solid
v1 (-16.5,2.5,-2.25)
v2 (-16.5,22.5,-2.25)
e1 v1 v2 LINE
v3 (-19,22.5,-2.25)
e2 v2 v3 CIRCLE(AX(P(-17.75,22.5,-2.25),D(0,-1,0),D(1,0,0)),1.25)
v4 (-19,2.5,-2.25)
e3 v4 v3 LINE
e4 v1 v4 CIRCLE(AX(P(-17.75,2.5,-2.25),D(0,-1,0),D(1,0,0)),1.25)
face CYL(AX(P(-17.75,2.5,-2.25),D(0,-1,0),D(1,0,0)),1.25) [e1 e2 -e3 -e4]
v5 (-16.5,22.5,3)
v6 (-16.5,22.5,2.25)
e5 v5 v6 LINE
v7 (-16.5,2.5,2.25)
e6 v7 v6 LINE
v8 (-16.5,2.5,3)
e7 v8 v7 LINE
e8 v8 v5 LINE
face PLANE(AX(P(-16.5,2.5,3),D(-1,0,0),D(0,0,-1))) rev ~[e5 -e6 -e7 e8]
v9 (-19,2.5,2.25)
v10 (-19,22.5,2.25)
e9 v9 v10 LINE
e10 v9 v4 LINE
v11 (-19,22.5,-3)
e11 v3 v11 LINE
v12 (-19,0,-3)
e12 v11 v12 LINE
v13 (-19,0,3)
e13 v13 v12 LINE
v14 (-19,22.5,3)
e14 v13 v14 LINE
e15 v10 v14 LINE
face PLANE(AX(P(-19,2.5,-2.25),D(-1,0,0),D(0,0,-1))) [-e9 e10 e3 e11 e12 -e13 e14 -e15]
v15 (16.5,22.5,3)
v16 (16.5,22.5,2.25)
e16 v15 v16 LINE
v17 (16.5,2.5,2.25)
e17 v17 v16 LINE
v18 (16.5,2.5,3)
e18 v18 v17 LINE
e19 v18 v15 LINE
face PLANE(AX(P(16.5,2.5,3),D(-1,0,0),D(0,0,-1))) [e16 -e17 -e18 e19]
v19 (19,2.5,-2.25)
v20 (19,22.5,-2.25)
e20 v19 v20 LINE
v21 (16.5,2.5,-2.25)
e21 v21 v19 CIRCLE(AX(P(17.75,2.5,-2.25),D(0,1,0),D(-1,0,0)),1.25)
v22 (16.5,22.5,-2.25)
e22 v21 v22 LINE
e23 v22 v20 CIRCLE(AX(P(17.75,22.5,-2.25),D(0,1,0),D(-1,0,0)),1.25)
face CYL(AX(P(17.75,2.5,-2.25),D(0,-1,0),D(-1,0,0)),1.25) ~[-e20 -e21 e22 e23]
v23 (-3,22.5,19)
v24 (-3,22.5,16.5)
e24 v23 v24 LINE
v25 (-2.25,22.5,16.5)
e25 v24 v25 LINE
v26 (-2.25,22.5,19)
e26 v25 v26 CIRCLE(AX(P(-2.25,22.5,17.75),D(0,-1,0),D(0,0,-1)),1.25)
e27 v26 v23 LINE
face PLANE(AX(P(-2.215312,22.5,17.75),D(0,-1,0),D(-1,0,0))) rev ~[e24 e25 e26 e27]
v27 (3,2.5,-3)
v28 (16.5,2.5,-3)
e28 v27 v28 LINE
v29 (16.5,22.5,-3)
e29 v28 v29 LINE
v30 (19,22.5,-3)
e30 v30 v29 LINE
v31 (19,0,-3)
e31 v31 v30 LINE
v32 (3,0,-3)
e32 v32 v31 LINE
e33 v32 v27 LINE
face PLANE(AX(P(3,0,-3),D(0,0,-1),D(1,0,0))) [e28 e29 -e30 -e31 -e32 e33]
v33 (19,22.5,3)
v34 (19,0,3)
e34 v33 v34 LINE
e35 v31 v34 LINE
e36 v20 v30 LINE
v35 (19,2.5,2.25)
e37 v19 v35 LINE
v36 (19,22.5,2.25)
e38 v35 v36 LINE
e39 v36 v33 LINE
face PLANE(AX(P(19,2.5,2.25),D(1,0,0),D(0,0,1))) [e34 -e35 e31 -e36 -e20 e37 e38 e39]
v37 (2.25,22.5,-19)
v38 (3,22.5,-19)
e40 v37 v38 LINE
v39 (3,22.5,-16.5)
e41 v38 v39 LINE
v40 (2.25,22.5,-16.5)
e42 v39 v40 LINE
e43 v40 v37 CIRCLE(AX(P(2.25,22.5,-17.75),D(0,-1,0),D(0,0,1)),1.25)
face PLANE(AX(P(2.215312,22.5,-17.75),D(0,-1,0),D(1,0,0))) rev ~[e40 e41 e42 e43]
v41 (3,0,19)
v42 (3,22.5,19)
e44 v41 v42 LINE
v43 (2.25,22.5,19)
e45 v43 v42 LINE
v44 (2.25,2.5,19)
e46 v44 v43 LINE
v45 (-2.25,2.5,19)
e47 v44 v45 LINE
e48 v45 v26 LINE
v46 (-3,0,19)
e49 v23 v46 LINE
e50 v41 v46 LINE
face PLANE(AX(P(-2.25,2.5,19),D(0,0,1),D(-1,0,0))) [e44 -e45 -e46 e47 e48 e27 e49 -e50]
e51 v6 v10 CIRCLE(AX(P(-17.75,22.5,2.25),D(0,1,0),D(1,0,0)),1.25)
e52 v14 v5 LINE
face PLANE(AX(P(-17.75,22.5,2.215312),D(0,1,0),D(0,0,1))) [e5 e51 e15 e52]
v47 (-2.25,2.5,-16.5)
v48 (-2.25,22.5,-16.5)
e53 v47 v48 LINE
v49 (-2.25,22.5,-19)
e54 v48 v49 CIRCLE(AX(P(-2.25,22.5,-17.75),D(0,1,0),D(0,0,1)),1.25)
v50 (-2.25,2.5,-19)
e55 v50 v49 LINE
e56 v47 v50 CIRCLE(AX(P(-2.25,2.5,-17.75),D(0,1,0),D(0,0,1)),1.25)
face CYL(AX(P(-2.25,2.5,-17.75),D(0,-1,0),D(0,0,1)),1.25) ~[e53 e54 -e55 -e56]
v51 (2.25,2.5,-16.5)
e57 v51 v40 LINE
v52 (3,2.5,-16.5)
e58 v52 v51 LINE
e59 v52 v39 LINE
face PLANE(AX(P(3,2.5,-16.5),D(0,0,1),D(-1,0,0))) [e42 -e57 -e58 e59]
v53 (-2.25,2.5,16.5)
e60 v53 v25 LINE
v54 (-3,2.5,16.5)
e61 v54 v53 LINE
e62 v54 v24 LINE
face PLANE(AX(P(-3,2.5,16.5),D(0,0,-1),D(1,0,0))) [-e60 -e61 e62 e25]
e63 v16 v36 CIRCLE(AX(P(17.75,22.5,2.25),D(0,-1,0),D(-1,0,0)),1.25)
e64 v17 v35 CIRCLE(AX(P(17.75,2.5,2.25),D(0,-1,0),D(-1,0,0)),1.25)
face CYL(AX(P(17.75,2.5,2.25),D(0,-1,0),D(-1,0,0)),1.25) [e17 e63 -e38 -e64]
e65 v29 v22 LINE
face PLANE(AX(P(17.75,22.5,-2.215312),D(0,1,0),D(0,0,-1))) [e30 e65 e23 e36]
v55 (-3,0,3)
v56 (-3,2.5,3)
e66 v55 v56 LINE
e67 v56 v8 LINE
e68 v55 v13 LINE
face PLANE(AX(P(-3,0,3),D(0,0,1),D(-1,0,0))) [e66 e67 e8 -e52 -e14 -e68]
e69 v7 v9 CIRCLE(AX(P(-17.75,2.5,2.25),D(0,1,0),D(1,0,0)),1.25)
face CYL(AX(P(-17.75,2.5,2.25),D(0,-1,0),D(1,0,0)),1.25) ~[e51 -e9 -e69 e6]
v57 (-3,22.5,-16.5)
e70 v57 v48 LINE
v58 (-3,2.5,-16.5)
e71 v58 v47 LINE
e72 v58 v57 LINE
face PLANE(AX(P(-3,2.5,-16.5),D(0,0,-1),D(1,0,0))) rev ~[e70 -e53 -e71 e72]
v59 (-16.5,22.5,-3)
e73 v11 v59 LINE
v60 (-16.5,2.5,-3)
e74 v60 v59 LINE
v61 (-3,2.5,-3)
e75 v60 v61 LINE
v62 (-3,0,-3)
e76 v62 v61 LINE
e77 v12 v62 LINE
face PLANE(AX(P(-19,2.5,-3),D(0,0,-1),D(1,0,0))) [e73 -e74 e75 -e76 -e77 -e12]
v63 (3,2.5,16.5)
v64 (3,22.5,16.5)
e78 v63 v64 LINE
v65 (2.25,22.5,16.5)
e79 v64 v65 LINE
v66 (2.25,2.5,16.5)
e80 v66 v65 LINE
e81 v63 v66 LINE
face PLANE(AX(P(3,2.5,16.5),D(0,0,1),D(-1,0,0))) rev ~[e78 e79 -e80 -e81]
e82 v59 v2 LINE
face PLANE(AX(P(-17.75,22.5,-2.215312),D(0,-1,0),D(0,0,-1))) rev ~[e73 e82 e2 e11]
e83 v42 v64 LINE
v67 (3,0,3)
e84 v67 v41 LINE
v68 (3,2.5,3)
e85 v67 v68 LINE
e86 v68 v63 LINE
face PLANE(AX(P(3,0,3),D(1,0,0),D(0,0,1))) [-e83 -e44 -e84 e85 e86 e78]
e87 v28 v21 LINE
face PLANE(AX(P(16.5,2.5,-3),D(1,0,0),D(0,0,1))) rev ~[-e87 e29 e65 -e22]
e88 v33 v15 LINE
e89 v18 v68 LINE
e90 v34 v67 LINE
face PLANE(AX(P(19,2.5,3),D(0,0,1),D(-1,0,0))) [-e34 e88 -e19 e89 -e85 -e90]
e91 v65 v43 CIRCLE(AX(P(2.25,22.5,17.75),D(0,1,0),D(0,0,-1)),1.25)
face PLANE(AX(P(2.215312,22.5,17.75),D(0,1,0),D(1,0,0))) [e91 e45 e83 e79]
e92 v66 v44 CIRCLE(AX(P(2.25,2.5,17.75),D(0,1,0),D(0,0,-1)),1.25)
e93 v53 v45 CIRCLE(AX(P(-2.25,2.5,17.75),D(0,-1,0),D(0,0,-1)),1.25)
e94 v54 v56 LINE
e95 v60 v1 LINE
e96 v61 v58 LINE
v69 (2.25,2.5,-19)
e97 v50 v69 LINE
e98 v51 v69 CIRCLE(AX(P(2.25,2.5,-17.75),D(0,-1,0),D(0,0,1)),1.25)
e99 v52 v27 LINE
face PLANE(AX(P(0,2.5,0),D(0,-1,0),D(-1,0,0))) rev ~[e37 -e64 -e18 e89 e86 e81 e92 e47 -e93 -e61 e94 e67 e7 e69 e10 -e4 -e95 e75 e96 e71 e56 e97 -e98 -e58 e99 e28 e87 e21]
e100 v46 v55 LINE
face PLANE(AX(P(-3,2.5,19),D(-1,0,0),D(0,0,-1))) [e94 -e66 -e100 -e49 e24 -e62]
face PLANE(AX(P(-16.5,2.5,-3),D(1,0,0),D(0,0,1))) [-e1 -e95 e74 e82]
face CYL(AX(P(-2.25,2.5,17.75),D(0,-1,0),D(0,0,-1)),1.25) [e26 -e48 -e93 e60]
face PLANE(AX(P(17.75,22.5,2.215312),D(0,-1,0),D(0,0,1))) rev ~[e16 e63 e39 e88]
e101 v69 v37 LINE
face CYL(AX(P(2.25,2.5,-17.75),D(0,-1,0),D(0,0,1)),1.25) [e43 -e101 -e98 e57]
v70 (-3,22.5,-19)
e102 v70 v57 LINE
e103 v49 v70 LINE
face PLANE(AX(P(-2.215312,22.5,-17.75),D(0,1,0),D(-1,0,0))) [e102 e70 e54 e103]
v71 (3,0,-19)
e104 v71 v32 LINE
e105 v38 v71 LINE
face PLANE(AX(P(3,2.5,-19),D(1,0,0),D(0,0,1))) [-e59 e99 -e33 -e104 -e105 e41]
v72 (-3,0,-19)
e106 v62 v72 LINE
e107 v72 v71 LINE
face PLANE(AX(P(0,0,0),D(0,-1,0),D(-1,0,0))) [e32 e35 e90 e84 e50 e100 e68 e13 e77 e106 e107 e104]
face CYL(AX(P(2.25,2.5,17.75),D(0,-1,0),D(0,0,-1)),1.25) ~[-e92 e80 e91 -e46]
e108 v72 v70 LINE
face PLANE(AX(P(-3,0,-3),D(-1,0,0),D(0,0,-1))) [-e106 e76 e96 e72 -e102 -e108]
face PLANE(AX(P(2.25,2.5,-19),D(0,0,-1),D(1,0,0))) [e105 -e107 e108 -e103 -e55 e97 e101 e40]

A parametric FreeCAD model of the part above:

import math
import FreeCAD as App
import Part
import Sketcher
Q = App.Units.Quantity


def add_polygon(sketch, points):
    """Adds a closed chain of lines whose ends are joined by coincident constraints."""
    first, n = sketch.GeometryCount, len(points)
    for a, b in zip(points, points[1:] + points[:1]):
        sketch.addGeometry(Part.LineSegment(App.Vector(*a, 0), App.Vector(*b, 0)), False)
    for i in range(n):
        sketch.addConstraint(Sketcher.Constraint("Coincident", first + i, 2, first + (i + 1) % n, 1))

doc = App.newDocument("Part")
body = doc.addObject("PartDesign::Body", "Body")

# Sketch on XZ plane
sketch1 = doc.addObject("Sketcher::SketchObject", "Sketch")
body.addObject(sketch1)
sketch1.AttachmentSupport = (doc.XZ_Plane, [""])
sketch1.MapMode = "FlatFace"
add_polygon(sketch1, [(-3, -19), (-3, -3), (-19, -3), (-19, 3), (-3, 3), (-3, 19), (3, 19), (3, 3), (19, 3), (19, -3), (3, -3), (3, -19)])  # lines 0-11
sketch1.addConstraint(Sketcher.Constraint("Vertical", 0))
sketch1.addConstraint(Sketcher.Constraint("Horizontal", 1))
sketch1.addConstraint(Sketcher.Constraint("Vertical", 2))
sketch1.addConstraint(Sketcher.Constraint("Horizontal", 3))
sketch1.addConstraint(Sketcher.Constraint("Vertical", 4))
sketch1.addConstraint(Sketcher.Constraint("Horizontal", 5))
sketch1.addConstraint(Sketcher.Constraint("Vertical", 6))
sketch1.addConstraint(Sketcher.Constraint("Horizontal", 7))
sketch1.addConstraint(Sketcher.Constraint("Vertical", 8))
sketch1.addConstraint(Sketcher.Constraint("Horizontal", 9))
sketch1.addConstraint(Sketcher.Constraint("Vertical", 10))
sketch1.addConstraint(Sketcher.Constraint("Horizontal", 11))
sketch1.addConstraint(Sketcher.Constraint("Symmetric", 0, 2, 6, 2, -1, 1))
sketch1.addConstraint(Sketcher.Constraint("Symmetric", 2, 2, 8, 2, -1, 1))
sketch1.addConstraint(Sketcher.Constraint("Symmetric", 4, 2, 10, 2, -1, 1))
sketch1.addConstraint(Sketcher.Constraint("Symmetric", 3, 2, 6, 2, -2))
sketch1.addConstraint(Sketcher.Constraint("Equal", 9, 0))
sketch1.addConstraint(Sketcher.Constraint("Equal", 11, 2))
sketch1.addConstraint(Sketcher.Constraint("DistanceX", 1, 2, 1, 1, Q("16 mm")))
sketch1.addConstraint(Sketcher.Constraint("DistanceX", 5, 1, 5, 2, Q("6 mm")))
pad1 = doc.addObject("PartDesign::Pad", "Pad")
body.addObject(pad1)
pad1.Profile = sketch1
pad1.Length = 2.5
pad1.Reversed = True

# Sketch on XZ plane
sketch2 = doc.addObject("Sketcher::SketchObject", "Sketch001")
body.addObject(sketch2)
sketch2.AttachmentSupport = (doc.XZ_Plane, [""])
sketch2.MapMode = "FlatFace"
sketch2.AttachmentOffset = App.Placement(App.Vector(0, 0, -2.5), App.Rotation())
sketch2.addGeometry(Part.LineSegment(App.Vector(-3, 19, 0), App.Vector(-2.2, 19, 0)), False)
sketch2.addGeometry(Part.ArcOfCircle(Part.Circle(App.Vector(-2.2, 17.8, 0), App.Vector(0, 0, 1), 1.2), math.radians(-90), math.radians(90)), False)
sketch2.addGeometry(Part.LineSegment(App.Vector(-2.2, 16.5, 0), App.Vector(-3, 16.5, 0)), False)
sketch2.addGeometry(Part.LineSegment(App.Vector(-3, 16.5, 0), App.Vector(-3, 19, 0)), False)
sketch2.addGeometry(Part.LineSegment(App.Vector(3, 16.5, 0), App.Vector(2.2, 16.5, 0)), False)
sketch2.addGeometry(Part.ArcOfCircle(Part.Circle(App.Vector(2.2, 17.8, 0), App.Vector(0, 0, 1), 1.2), math.radians(90), math.radians(270)), False)
sketch2.addGeometry(Part.LineSegment(App.Vector(2.2, 19, 0), App.Vector(3, 19, 0)), False)
sketch2.addGeometry(Part.LineSegment(App.Vector(3, 19, 0), App.Vector(3, 16.5, 0)), False)
sketch2.addConstraint(Sketcher.Constraint("Tangent", 0, 2, 1, 2))
sketch2.addConstraint(Sketcher.Constraint("Tangent", 1, 1, 2, 1))
sketch2.addConstraint(Sketcher.Constraint("Coincident", 2, 2, 3, 1))
sketch2.addConstraint(Sketcher.Constraint("Coincident", 3, 2, 0, 1))
sketch2.addConstraint(Sketcher.Constraint("Tangent", 4, 2, 5, 2))
sketch2.addConstraint(Sketcher.Constraint("Tangent", 5, 1, 6, 1))
sketch2.addConstraint(Sketcher.Constraint("Coincident", 6, 2, 7, 1))
sketch2.addConstraint(Sketcher.Constraint("Coincident", 7, 2, 4, 1))
sketch2.addConstraint(Sketcher.Constraint("Horizontal", 0))
sketch2.addConstraint(Sketcher.Constraint("Horizontal", 2))
sketch2.addConstraint(Sketcher.Constraint("Vertical", 3))
sketch2.addConstraint(Sketcher.Constraint("Horizontal", 4))
sketch2.addConstraint(Sketcher.Constraint("Horizontal", 6))
sketch2.addConstraint(Sketcher.Constraint("Vertical", 7))
sketch2.addConstraint(Sketcher.Constraint("Equal", 1, 5))
sketch2.addConstraint(Sketcher.Constraint("Symmetric", 1, 3, 5, 3, -2))
sketch2.addConstraint(Sketcher.Constraint("Equal", 2, 4))
sketch2.addConstraint(Sketcher.Constraint("Radius", 1, Q("1.25 mm")))
sketch2.addConstraint(Sketcher.Constraint("DistanceY", -1, 1, 0, 2, Q("19 mm")))
sketch2.addConstraint(Sketcher.Constraint("DistanceX", 2, 2, -1, 1, Q("3 mm")))
sketch2.addConstraint(Sketcher.Constraint("DistanceX", 0, 1, 0, 2, Q("0.75 mm")))
pad2 = doc.addObject("PartDesign::Pad", "Pad001")
body.addObject(pad2)
pad2.Profile = sketch2
pad2.Length = 20
pad2.Reversed = True
doc.recompute()

polarpattern = doc.addObject("PartDesign::PolarPattern", "PolarPattern")
body.addObject(polarpattern)
polarpattern.Originals = [pad2]
polarpattern.Axis = (doc.Y_Axis, [""])
polarpattern.Angle = 360
polarpattern.Occurrences = 4
body.Tip = polarpattern

doc.recompute()
